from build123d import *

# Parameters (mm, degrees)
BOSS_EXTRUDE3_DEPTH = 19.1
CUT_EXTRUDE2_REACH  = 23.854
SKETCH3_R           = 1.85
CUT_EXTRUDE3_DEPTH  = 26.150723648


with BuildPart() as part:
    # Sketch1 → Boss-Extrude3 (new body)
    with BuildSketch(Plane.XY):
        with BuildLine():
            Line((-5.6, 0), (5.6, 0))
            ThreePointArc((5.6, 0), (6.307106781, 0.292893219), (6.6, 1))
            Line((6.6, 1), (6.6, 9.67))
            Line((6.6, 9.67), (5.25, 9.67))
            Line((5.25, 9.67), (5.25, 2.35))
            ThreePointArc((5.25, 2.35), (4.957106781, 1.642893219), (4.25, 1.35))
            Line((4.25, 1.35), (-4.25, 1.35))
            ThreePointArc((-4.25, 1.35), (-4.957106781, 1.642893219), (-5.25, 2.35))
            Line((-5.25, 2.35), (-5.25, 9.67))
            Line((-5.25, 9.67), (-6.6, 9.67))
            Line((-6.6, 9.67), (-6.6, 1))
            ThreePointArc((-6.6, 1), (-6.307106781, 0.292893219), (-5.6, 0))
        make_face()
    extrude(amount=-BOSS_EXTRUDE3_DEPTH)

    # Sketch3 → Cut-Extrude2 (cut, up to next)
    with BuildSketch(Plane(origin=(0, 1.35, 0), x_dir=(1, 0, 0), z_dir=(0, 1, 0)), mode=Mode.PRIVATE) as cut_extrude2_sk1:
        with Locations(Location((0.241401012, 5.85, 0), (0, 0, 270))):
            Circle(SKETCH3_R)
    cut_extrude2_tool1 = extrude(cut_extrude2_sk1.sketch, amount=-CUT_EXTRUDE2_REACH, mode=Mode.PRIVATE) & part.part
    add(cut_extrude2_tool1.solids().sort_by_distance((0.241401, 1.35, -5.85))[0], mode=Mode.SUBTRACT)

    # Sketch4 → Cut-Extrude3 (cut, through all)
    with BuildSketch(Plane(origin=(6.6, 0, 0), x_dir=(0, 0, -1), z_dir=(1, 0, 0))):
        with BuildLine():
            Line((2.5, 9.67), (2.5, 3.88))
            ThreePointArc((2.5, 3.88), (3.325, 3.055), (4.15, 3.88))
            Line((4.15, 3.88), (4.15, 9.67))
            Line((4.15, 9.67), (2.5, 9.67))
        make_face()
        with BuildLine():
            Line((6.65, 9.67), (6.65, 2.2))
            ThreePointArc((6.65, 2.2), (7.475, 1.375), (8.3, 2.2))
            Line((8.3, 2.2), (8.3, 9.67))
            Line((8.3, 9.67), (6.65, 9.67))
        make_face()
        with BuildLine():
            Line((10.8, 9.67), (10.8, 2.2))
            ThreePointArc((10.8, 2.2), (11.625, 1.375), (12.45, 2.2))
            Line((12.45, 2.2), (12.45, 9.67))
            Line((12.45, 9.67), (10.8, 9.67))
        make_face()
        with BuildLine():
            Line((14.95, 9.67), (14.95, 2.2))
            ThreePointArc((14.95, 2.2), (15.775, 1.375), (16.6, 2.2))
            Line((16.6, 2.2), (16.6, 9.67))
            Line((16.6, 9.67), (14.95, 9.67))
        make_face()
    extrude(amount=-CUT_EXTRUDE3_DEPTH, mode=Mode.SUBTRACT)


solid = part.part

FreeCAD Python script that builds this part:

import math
import FreeCAD as App
import Part
import Sketcher
from FreeCAD import Vector
Q = App.Units.Quantity

doc = App.newDocument("Part")
body = doc.addObject("PartDesign::Body", "Body")

sketch1 = body.newObject("Sketcher::SketchObject", "Sketch")
sketch1.AttachmentSupport = (doc.getObject("XY_Plane"), [""])
sketch1.MapMode = "FlatFace"
sketch1.addGeometry([
    Part.LineSegment(Vector(-5.6, 0, 0), Vector(5.6, 0, 0)),
    Part.ArcOfCircle(Part.Circle(Vector(5.6, 1, 0), Vector(0, 0, 1), 1), math.radians(-90), math.radians(0)),
    Part.LineSegment(Vector(6.6, 1, 0), Vector(6.6, 9.7, 0)),
    Part.LineSegment(Vector(6.6, 9.7, 0), Vector(5.2, 9.7, 0)),
    Part.LineSegment(Vector(5.2, 9.7, 0), Vector(5.2, 2.4, 0)),
    Part.ArcOfCircle(Part.Circle(Vector(4.2, 2.4, 0), Vector(0, 0, 1), 1), math.radians(-90), math.radians(0)),
    Part.LineSegment(Vector(4.2, 1.4, 0), Vector(-4.2, 1.4, 0)),
    Part.ArcOfCircle(Part.Circle(Vector(-4.2, 2.4, 0), Vector(0, 0, 1), 1), math.radians(-180), math.radians(-90)),
    Part.LineSegment(Vector(-5.2, 2.4, 0), Vector(-5.2, 9.7, 0)),
    Part.LineSegment(Vector(-5.2, 9.7, 0), Vector(-6.6, 9.7, 0)),
    Part.LineSegment(Vector(-6.6, 9.7, 0), Vector(-6.6, 1, 0)),
    Part.ArcOfCircle(Part.Circle(Vector(-5.6, 1, 0), Vector(0, 0, 1), 1), math.radians(-180), math.radians(-90)),
], False)
sketch1.addConstraint([
    Sketcher.Constraint("Tangent", 0, 2, 1, 1),
    Sketcher.Constraint("Tangent", 1, 2, 2, 1),
    Sketcher.Constraint("Coincident", 2, 2, 3, 1),
    Sketcher.Constraint("Coincident", 3, 2, 4, 1),
    Sketcher.Constraint("Tangent", 4, 2, 5, 2),
    Sketcher.Constraint("Tangent", 5, 1, 6, 1),
    Sketcher.Constraint("Tangent", 6, 2, 7, 2),
    Sketcher.Constraint("Tangent", 7, 1, 8, 1),
    Sketcher.Constraint("Coincident", 8, 2, 9, 1),
    Sketcher.Constraint("Coincident", 9, 2, 10, 1),
    Sketcher.Constraint("Tangent", 10, 2, 11, 1),
    Sketcher.Constraint("Tangent", 11, 2, 0, 1),
    Sketcher.Constraint("Horizontal", 0),
    Sketcher.Constraint("Vertical", 2),
    Sketcher.Constraint("Horizontal", 3),
    Sketcher.Constraint("Vertical", 4),
    Sketcher.Constraint("Horizontal", 6),
    Sketcher.Constraint("Vertical", 8),
    Sketcher.Constraint("Horizontal", 9),
    Sketcher.Constraint("Vertical", 10),
    Sketcher.Constraint("Equal", 1, 5),
    Sketcher.Constraint("Equal", 5, 7),
    Sketcher.Constraint("Equal", 7, 11),
    Sketcher.Constraint("Symmetric", 0, 2, 11, 2, -1, 1),
    Sketcher.Constraint("Symmetric", 3, 2, 8, 2, -2),
    Sketcher.Constraint("Radius", 1, Q("1 mm")),
    Sketcher.Constraint("DistanceX", 0, 1, 0, 2, Q("11.2 mm")),
    Sketcher.Constraint("DistanceX", 6, 2, 6, 1, Q("8.5 mm")),
    Sketcher.Constraint("DistanceY", 2, 1, 2, 2, Q("8.67 mm")),
    Sketcher.Constraint("DistanceY", 4, 2, 4, 1, Q("7.32 mm")),
])
pad1 = body.newObject("PartDesign::Pad", "Pad")
pad1.Profile = sketch1
pad1.Length = 19.1
pad1.Reversed = True

sketch2 = body.newObject("Sketcher::SketchObject", "Sketch001")
sketch2.AttachmentSupport = (doc.getObject("XZ_Plane"), [""])
sketch2.MapMode = "FlatFace"
sketch2.AttachmentOffset = App.Placement(Vector(0, 0, -1.35), App.Rotation())
sketch2.addGeometry(Part.Circle(Vector(0.2, -5.8, 0), Vector(0, 0, 1), 1.9), False)
sketch2.addConstraint([
    Sketcher.Constraint("Diameter", 0, Q("3.7 mm")),
    Sketcher.Constraint("DistanceY", 0, 3, -1, 1, Q("5.85 mm")),
    Sketcher.Constraint("DistanceX", -1, 1, 0, 3, Q("0.241401 mm")),
])
pocket1 = body.newObject("PartDesign::Pocket", "Pocket")
pocket1.Profile = sketch2
pocket1.Type = "UpToFirst"
pocket1.Reversed = True

sketch3 = body.newObject("Sketcher::SketchObject", "Sketch002")
sketch3.AttachmentSupport = (doc.getObject("YZ_Plane"), [""])
sketch3.MapMode = "FlatFace"
sketch3.AttachmentOffset = App.Placement(Vector(0, 0, 6.6), App.Rotation())
sketch3.addGeometry([
    Part.LineSegment(Vector(9.7, -2.5, 0), Vector(3.9, -2.5, 0)),
    Part.ArcOfCircle(Part.Circle(Vector(3.9, -3.3, 0), Vector(0, 0, 1), 0.8), math.radians(90), math.radians(270)),
    Part.LineSegment(Vector(3.9, -4.2, 0), Vector(9.7, -4.2, 0)),
    Part.LineSegment(Vector(9.7, -4.2, 0), Vector(9.7, -2.5, 0)),
    Part.LineSegment(Vector(9.7, -6.7, 0), Vector(2.2, -6.7, 0)),
    Part.ArcOfCircle(Part.Circle(Vector(2.2, -7.5, 0), Vector(0, 0, 1), 0.8), math.radians(90), math.radians(270)),
    Part.LineSegment(Vector(2.2, -8.3, 0), Vector(9.7, -8.3, 0)),
    Part.LineSegment(Vector(9.7, -8.3, 0), Vector(9.7, -6.7, 0)),
    Part.LineSegment(Vector(9.7, -10.8, 0), Vector(2.2, -10.8, 0)),
    Part.ArcOfCircle(Part.Circle(Vector(2.2, -11.6, 0), Vector(0, 0, 1), 0.8), math.radians(90), math.radians(270)),
    Part.LineSegment(Vector(2.2, -12.4, 0), Vector(9.7, -12.4, 0)),
    Part.LineSegment(Vector(9.7, -12.4, 0), Vector(9.7, -10.8, 0)),
    Part.LineSegment(Vector(9.7, -14.9, 0), Vector(2.2, -14.9, 0)),
    Part.ArcOfCircle(Part.Circle(Vector(2.2, -15.8, 0), Vector(0, 0, 1), 0.8), math.radians(90), math.radians(270)),
    Part.LineSegment(Vector(2.2, -16.6, 0), Vector(9.7, -16.6, 0)),
    Part.LineSegment(Vector(9.7, -16.6, 0), Vector(9.7, -14.9, 0)),
], False)
sketch3.addConstraint([
    Sketcher.Constraint("Tangent", 0, 2, 1, 1),
    Sketcher.Constraint("Tangent", 1, 2, 2, 1),
    Sketcher.Constraint("Coincident", 2, 2, 3, 1),
    Sketcher.Constraint("Coincident", 3, 2, 0, 1),
    Sketcher.Constraint("Tangent", 4, 2, 5, 1),
    Sketcher.Constraint("Tangent", 5, 2, 6, 1),
    Sketcher.Constraint("Coincident", 6, 2, 7, 1),
    Sketcher.Constraint("Coincident", 7, 2, 4, 1),
    Sketcher.Constraint("Tangent", 8, 2, 9, 1),
    Sketcher.Constraint("Tangent", 9, 2, 10, 1),
    Sketcher.Constraint("Coincident", 10, 2, 11, 1),
    Sketcher.Constraint("Coincident", 11, 2, 8, 1),
    Sketcher.Constraint("Tangent", 12, 2, 13, 1),
    Sketcher.Constraint("Tangent", 13, 2, 14, 1),
    Sketcher.Constraint("Coincident", 14, 2, 15, 1),
    Sketcher.Constraint("Coincident", 15, 2, 12, 1),
    Sketcher.Constraint("Horizontal", 0),
    Sketcher.Constraint("Horizontal", 2),
    Sketcher.Constraint("Vertical", 3),
    Sketcher.Constraint("Horizontal", 4),
    Sketcher.Constraint("Horizontal", 6),
    Sketcher.Constraint("Vertical", 7),
    Sketcher.Constraint("Horizontal", 8),
    Sketcher.Constraint("Horizontal", 10),
    Sketcher.Constraint("Vertical", 11),
    Sketcher.Constraint("Horizontal", 12),
    Sketcher.Constraint("Horizontal", 14),
    Sketcher.Constraint("Vertical", 15),
    Sketcher.Constraint("Equal", 1, 5),
    Sketcher.Constraint("Equal", 5, 9),
    Sketcher.Constraint("Equal", 9, 13),
    Sketcher.Constraint("Vertical", 5, 3, 9, 3),
    Sketcher.Constraint("Vertical", 9, 3, 13, 3),
    Sketcher.Constraint("Vertical", 3, 2, 6, 2),
    Sketcher.Constraint("Vertical", 7, 2, 10, 2),
    Sketcher.Constraint("Vertical", 11, 2, 14, 2),
    Sketcher.Constraint("Radius", 1, Q("0.825 mm")),
    Sketcher.Constraint("DistanceX", 0, 2, 0, 1, Q("5.79 mm")),
    Sketcher.Constraint("DistanceX", 4, 2, 4, 1, Q("7.47 mm")),
    Sketcher.Constraint("DistanceX", -1, 1, 5, 3, Q("2.2 mm")),
    Sketcher.Constraint("DistanceY", 0, 2, -1, 1, Q("2.5 mm")),
    Sketcher.Constraint("DistanceY", 5, 2, -1, 1, Q("8.3 mm")),
    Sketcher.Constraint("DistanceY", 8, 2, -1, 1, Q("10.8 mm")),
    Sketcher.Constraint("DistanceY", 13, 2, -1, 1, Q("16.6 mm")),
])
pocket2 = body.newObject("PartDesign::Pocket", "Pocket001")
pocket2.Profile = sketch3
pocket2.Type = "ThroughAll"

doc.recompute()
